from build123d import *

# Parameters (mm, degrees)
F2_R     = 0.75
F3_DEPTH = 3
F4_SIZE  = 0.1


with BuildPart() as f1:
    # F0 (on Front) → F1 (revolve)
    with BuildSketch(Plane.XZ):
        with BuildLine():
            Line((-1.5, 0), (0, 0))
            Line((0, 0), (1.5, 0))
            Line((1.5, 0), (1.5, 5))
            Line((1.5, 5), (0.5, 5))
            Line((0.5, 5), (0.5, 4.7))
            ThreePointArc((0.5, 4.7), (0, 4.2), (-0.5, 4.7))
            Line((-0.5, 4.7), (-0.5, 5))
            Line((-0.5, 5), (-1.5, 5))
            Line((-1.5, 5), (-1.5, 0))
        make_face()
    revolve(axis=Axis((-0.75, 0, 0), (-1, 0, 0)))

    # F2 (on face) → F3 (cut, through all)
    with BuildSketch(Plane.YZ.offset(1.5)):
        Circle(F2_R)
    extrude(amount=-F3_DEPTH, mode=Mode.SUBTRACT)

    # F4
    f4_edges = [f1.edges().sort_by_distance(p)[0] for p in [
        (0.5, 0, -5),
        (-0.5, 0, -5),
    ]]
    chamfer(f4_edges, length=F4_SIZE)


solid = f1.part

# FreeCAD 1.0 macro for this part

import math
import FreeCAD as App
import Part
import Sketcher
from FreeCAD import Vector
Q = App.Units.Quantity


def edges_at(feature, points):
    """Names of the edges that pass closest to the given points."""
    edges = feature.Shape.Edges
    near = lambda p: min(range(len(edges)), key=lambda i: edges[i].distToShape(Part.Vertex(*p))[0])
    return sorted({f"Edge{near(p) + 1}" for p in points})

doc = App.newDocument("Part")
body = doc.addObject("PartDesign::Body", "Body")

# Sketch on XZ plane
sketch1 = doc.addObject("Sketcher::SketchObject", "Sketch")
body.addObject(sketch1)
sketch1.AttachmentSupport = (doc.XZ_Plane, [""])
sketch1.MapMode = "FlatFace"
sketch1.addGeometry([
    Part.LineSegment(Vector(-1.5, 0, 0), Vector(1.5, 0, 0)),  # 0
    Part.LineSegment(Vector(1.5, 0, 0), Vector(1.5, 5, 0)),  # 1
    Part.LineSegment(Vector(1.5, 5, 0), Vector(0.5, 5, 0)),  # 2
    Part.LineSegment(Vector(0.5, 5, 0), Vector(0.5, 4.7, 0)),  # 3
    Part.ArcOfCircle(Part.Circle(Vector(0, 4.7, 0), Vector(0, 0, 1), 0.5), math.radians(180), math.radians(360)),  # 4
    Part.LineSegment(Vector(-0.5, 4.7, 0), Vector(-0.5, 5, 0)),  # 5
    Part.LineSegment(Vector(-0.5, 5, 0), Vector(-1.5, 5, 0)),  # 6
    Part.LineSegment(Vector(-1.5, 5, 0), Vector(-1.5, 0, 0)),  # 7
], False)
sketch1.addConstraint([
    Sketcher.Constraint("Coincident", 0, 2, 1, 1),
    Sketcher.Constraint("Coincident", 1, 2, 2, 1),
    Sketcher.Constraint("Coincident", 2, 2, 3, 1),
    Sketcher.Constraint("Tangent", 3, 2, 4, 2),
    Sketcher.Constraint("Tangent", 4, 1, 5, 1),
    Sketcher.Constraint("Coincident", 5, 2, 6, 1),
    Sketcher.Constraint("Coincident", 6, 2, 7, 1),
    Sketcher.Constraint("Coincident", 7, 2, 0, 1),
    Sketcher.Constraint("Horizontal", 0),
    Sketcher.Constraint("Vertical", 1),
    Sketcher.Constraint("Horizontal", 2),
    Sketcher.Constraint("Vertical", 3),
    Sketcher.Constraint("Vertical", 5),
    Sketcher.Constraint("Horizontal", 6),
    Sketcher.Constraint("Vertical", 7),
    Sketcher.Constraint("Symmetric", 0, 2, 7, 2, -1, 1),
    Sketcher.Constraint("Symmetric", 2, 2, 5, 2, -2),
    Sketcher.Constraint("Radius", 4, Q("0.5 mm")),
    Sketcher.Constraint("DistanceX", 0, 1, 0, 2, Q("3 mm")),
    Sketcher.Constraint("DistanceY", 1, 1, 1, 2, Q("5 mm")),
    Sketcher.Constraint("DistanceY", 3, 2, 3, 1, Q("0.3 mm")),
])
revolution = doc.addObject("PartDesign::Revolution", "Revolution")
body.addObject(revolution)
revolution.Profile = sketch1
revolution.ReferenceAxis = (sketch1, ["H_Axis"])
revolution.Angle = 360

# Sketch on YZ plane
sketch2 = doc.addObject("Sketcher::SketchObject", "Sketch001")
body.addObject(sketch2)
sketch2.AttachmentSupport = (doc.YZ_Plane, [""])
sketch2.MapMode = "FlatFace"
sketch2.AttachmentOffset = App.Placement(Vector(0, 0, 1.5), App.Rotation())
sketch2.addGeometry(Part.Circle(Vector(0, 0, 0), Vector(0, 0, 1), 0.8), False)
sketch2.addConstraint([
    Sketcher.Constraint("Coincident", 0, 3, -1, 1),
    Sketcher.Constraint("Diameter", 0, Q("1.5 mm")),
])
pocket1 = doc.addObject("PartDesign::Pocket", "Pocket")
body.addObject(pocket1)
pocket1.Profile = sketch2
pocket1.Type = "ThroughAll"
doc.recompute()

chamfer = doc.addObject("PartDesign::Chamfer", "Chamfer")
body.addObject(chamfer)
chamfer.Base = (pocket1, edges_at(pocket1, [(0.5, 0, -5), (-0.5, 0, -5)]))
chamfer.Size = 0.1

doc.recompute()
